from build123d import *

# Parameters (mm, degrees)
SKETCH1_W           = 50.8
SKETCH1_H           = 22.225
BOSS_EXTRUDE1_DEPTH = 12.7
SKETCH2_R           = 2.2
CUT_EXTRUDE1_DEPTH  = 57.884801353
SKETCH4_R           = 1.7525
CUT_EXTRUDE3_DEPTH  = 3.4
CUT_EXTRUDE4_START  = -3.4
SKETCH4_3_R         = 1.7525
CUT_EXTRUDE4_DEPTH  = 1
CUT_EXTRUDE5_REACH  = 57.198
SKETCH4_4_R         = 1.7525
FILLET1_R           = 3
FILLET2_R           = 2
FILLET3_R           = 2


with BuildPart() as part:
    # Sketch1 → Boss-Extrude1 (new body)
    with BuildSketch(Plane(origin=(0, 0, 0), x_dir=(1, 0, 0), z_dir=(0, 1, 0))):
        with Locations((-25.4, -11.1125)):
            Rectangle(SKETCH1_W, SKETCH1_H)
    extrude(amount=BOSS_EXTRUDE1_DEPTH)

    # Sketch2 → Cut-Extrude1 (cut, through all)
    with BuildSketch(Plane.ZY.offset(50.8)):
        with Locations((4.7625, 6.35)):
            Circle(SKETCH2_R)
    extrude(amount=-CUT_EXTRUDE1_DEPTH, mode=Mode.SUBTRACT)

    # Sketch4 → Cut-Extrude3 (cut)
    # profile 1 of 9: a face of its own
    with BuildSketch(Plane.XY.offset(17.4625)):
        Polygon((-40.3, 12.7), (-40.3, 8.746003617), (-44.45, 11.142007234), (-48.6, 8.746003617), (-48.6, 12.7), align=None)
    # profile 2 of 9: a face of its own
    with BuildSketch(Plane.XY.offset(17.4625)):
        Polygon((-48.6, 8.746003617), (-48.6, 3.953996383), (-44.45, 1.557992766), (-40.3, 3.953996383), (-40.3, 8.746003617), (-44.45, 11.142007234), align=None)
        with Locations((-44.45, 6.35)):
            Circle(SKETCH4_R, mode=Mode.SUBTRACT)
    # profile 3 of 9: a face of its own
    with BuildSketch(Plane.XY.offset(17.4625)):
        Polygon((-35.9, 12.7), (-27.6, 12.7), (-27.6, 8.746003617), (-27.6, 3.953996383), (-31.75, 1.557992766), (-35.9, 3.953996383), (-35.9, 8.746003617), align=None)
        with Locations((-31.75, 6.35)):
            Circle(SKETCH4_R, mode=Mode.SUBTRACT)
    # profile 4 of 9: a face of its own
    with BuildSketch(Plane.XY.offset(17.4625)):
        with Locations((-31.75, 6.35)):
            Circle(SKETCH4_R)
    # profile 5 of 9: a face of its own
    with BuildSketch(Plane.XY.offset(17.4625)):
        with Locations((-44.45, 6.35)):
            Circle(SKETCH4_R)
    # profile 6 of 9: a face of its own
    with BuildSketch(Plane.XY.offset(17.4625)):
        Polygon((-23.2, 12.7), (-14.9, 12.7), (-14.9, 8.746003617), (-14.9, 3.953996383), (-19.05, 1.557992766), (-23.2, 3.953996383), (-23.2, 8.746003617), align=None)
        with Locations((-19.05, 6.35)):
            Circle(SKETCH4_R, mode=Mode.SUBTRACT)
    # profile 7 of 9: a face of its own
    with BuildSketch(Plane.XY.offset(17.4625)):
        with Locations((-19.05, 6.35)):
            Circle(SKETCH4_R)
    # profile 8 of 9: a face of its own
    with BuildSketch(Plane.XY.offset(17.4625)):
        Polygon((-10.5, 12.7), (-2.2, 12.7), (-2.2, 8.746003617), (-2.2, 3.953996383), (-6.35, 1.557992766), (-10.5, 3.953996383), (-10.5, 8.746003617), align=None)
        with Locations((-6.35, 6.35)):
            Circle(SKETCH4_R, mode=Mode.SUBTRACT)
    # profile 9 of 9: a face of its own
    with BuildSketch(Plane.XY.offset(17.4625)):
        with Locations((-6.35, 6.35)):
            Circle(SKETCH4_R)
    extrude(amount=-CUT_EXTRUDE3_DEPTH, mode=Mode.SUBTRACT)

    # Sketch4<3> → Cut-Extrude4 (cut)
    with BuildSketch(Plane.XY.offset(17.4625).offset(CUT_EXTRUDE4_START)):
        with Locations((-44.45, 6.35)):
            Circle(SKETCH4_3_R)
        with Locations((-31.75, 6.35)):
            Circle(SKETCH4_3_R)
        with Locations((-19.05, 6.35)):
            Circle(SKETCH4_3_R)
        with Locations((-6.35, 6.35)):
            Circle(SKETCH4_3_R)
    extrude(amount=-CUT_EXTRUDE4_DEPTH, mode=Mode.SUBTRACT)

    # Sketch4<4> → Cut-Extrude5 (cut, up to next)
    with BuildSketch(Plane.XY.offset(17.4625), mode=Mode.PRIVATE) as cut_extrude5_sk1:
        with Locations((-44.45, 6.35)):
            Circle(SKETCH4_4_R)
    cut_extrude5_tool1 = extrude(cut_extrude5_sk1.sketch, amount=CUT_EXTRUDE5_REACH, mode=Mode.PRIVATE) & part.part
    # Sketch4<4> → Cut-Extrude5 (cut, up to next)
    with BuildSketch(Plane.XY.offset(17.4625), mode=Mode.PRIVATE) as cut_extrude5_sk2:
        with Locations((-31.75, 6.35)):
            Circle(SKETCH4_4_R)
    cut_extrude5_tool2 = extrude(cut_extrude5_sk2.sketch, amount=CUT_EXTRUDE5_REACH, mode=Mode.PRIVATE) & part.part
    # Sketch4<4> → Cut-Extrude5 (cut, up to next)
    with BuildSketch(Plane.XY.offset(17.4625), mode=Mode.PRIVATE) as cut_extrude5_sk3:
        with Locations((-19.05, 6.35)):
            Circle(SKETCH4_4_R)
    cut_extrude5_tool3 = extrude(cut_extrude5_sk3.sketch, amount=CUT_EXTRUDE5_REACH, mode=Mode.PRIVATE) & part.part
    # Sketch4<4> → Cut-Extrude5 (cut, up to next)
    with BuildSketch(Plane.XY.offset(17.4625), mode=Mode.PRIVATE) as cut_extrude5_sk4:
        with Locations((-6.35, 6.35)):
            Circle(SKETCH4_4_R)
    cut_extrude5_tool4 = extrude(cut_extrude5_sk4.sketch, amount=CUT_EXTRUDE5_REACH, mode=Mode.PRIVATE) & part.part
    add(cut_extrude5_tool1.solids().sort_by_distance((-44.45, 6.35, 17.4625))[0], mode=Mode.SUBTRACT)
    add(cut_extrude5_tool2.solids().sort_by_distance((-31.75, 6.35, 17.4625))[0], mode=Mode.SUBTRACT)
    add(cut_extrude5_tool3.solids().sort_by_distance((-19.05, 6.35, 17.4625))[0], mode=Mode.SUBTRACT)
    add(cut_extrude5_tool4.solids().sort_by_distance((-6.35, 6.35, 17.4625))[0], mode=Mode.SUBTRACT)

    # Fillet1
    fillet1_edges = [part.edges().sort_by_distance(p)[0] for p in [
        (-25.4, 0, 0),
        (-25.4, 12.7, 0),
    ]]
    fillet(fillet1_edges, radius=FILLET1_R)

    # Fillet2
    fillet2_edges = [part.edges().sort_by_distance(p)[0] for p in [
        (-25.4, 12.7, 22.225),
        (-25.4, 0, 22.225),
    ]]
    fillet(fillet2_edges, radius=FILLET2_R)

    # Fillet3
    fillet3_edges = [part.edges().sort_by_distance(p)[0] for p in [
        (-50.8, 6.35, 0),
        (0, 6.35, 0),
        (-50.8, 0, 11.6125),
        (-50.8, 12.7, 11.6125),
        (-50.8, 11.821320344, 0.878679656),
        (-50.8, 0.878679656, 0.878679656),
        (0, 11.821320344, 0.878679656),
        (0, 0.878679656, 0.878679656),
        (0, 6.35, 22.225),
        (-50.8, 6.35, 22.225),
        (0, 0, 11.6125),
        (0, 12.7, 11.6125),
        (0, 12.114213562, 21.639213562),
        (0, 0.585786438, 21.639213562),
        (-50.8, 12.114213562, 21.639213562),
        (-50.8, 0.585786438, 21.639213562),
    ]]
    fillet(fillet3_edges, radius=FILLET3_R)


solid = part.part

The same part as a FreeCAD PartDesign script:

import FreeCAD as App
import Part
import Sketcher
from FreeCAD import Vector
Q = App.Units.Quantity


def edges_at(feature, points):
    """Names of the edges that pass closest to the given points."""
    edges = feature.Shape.Edges
    near = lambda p: min(range(len(edges)), key=lambda i: edges[i].distToShape(Part.Vertex(*p))[0])
    return sorted({f"Edge{near(p) + 1}" for p in points})

doc = App.newDocument("Part")
body = doc.addObject("PartDesign::Body", "Body")

# Sketch on XZ plane
sketch1 = body.newObject("Sketcher::SketchObject", "Sketch")
sketch1.AttachmentSupport = (doc.getObject("XZ_Plane"), [""])
sketch1.MapMode = "FlatFace"
sketch1.addGeometry(Part.LineSegment(Vector(-51, 0, 0), Vector(-51, 22, 0)), False)
sketch1.addGeometry(Part.LineSegment(Vector(-51, 22, 0), Vector(0, 22, 0)), False)
sketch1.addGeometry(Part.LineSegment(Vector(0, 22, 0), Vector(0, 0, 0)), False)
sketch1.addGeometry(Part.LineSegment(Vector(0, 0, 0), Vector(-51, 0, 0)), False)
sketch1.addConstraint(Sketcher.Constraint("Coincident", 0, 2, 1, 1))
sketch1.addConstraint(Sketcher.Constraint("Coincident", 1, 2, 2, 1))
sketch1.addConstraint(Sketcher.Constraint("Coincident", 2, 2, 3, 1))
sketch1.addConstraint(Sketcher.Constraint("Coincident", 3, 2, 0, 1))
sketch1.addConstraint(Sketcher.Constraint("Vertical", 0))
sketch1.addConstraint(Sketcher.Constraint("Horizontal", 1))
sketch1.addConstraint(Sketcher.Constraint("Vertical", 2))
sketch1.addConstraint(Sketcher.Constraint("Horizontal", 3))
sketch1.addConstraint(Sketcher.Constraint("Coincident", 2, 2, -1, 1))
sketch1.addConstraint(Sketcher.Constraint("DistanceX", 1, 1, 1, 2, Q("50.8 mm")))
sketch1.addConstraint(Sketcher.Constraint("DistanceY", 0, 1, 0, 2, Q("22.225 mm")))
pad1 = body.newObject("PartDesign::Pad", "Pad")
pad1.Profile = sketch1
pad1.Length = 12.7
pad1.Reversed = True

# Sketch on YZ plane
sketch2 = body.newObject("Sketcher::SketchObject", "Sketch001")
sketch2.AttachmentSupport = (doc.getObject("YZ_Plane"), [""])
sketch2.MapMode = "FlatFace"
sketch2.AttachmentOffset = App.Placement(Vector(0, 0, -50.8), App.Rotation())
sketch2.addGeometry(Part.Circle(Vector(6.3, 4.8, 0), Vector(0, 0, 1), 2.2), False)
sketch2.addConstraint(Sketcher.Constraint("Diameter", 0, Q("4.4 mm")))
sketch2.addConstraint(Sketcher.Constraint("DistanceX", -1, 1, 0, 3, Q("6.35 mm")))
sketch2.addConstraint(Sketcher.Constraint("DistanceY", -1, 1, 0, 3, Q("4.7625 mm")))
pocket1 = body.newObject("PartDesign::Pocket", "Pocket")
pocket1.Profile = sketch2
pocket1.Type = "ThroughAll"
pocket1.Reversed = True

# Sketch on XY plane
sketch3 = body.newObject("Sketcher::SketchObject", "Sketch002")
sketch3.AttachmentSupport = (doc.getObject("XY_Plane"), [""])
sketch3.MapMode = "FlatFace"
sketch3.AttachmentOffset = App.Placement(Vector(0, 0, 17.4625), App.Rotation())
sketch3.addGeometry(Part.LineSegment(Vector(-40.3, 4, 0), Vector(-40.3, 12.7, 0)), False)
sketch3.addGeometry(Part.LineSegment(Vector(-40.3, 12.7, 0), Vector(-48.6, 12.7, 0)), False)
sketch3.addGeometry(Part.LineSegment(Vector(-48.6, 12.7, 0), Vector(-48.6, 4, 0)), False)
sketch3.addGeometry(Part.LineSegment(Vector(-48.6, 4, 0), Vector(-44.5, 1.6, 0)), False)
sketch3.addGeometry(Part.LineSegment(Vector(-44.5, 1.6, 0), Vector(-40.3, 4, 0)), False)
sketch3.addGeometry(Part.LineSegment(Vector(-27.6, 12.7, 0), Vector(-35.9, 12.7, 0)), False)
sketch3.addGeometry(Part.LineSegment(Vector(-35.9, 12.7, 0), Vector(-35.9, 4, 0)), False)
sketch3.addGeometry(Part.LineSegment(Vector(-35.9, 4, 0), Vector(-31.8, 1.6, 0)), False)
sketch3.addGeometry(Part.LineSegment(Vector(-31.8, 1.6, 0), Vector(-27.6, 4, 0)), False)
sketch3.addGeometry(Part.LineSegment(Vector(-27.6, 4, 0), Vector(-27.6, 12.7, 0)), False)
sketch3.addGeometry(Part.LineSegment(Vector(-14.9, 12.7, 0), Vector(-23.2, 12.7, 0)), False)
sketch3.addGeometry(Part.LineSegment(Vector(-23.2, 12.7, 0), Vector(-23.2, 4, 0)), False)
sketch3.addGeometry(Part.LineSegment(Vector(-23.2, 4, 0), Vector(-19.1, 1.6, 0)), False)
sketch3.addGeometry(Part.LineSegment(Vector(-19.1, 1.6, 0), Vector(-14.9, 4, 0)), False)
sketch3.addGeometry(Part.LineSegment(Vector(-14.9, 4, 0), Vector(-14.9, 12.7, 0)), False)
sketch3.addGeometry(Part.LineSegment(Vector(-2.2, 12.7, 0), Vector(-10.5, 12.7, 0)), False)
sketch3.addGeometry(Part.LineSegment(Vector(-10.5, 12.7, 0), Vector(-10.5, 4, 0)), False)
sketch3.addGeometry(Part.LineSegment(Vector(-10.5, 4, 0), Vector(-6.3, 1.6, 0)), False)
sketch3.addGeometry(Part.LineSegment(Vector(-6.3, 1.6, 0), Vector(-2.2, 4, 0)), False)
sketch3.addGeometry(Part.LineSegment(Vector(-2.2, 4, 0), Vector(-2.2, 12.7, 0)), False)
sketch3.addConstraint(Sketcher.Constraint("Coincident", 0, 2, 1, 1))
sketch3.addConstraint(Sketcher.Constraint("Coincident", 1, 2, 2, 1))
sketch3.addConstraint(Sketcher.Constraint("Coincident", 2, 2, 3, 1))
sketch3.addConstraint(Sketcher.Constraint("Coincident", 3, 2, 4, 1))
sketch3.addConstraint(Sketcher.Constraint("Coincident", 4, 2, 0, 1))
sketch3.addConstraint(Sketcher.Constraint("Coincident", 5, 2, 6, 1))
sketch3.addConstraint(Sketcher.Constraint("Coincident", 6, 2, 7, 1))
sketch3.addConstraint(Sketcher.Constraint("Coincident", 7, 2, 8, 1))
sketch3.addConstraint(Sketcher.Constraint("Coincident", 8, 2, 9, 1))
sketch3.addConstraint(Sketcher.Constraint("Coincident", 9, 2, 5, 1))
sketch3.addConstraint(Sketcher.Constraint("Coincident", 10, 2, 11, 1))
sketch3.addConstraint(Sketcher.Constraint("Coincident", 11, 2, 12, 1))
sketch3.addConstraint(Sketcher.Constraint("Coincident", 12, 2, 13, 1))
sketch3.addConstraint(Sketcher.Constraint("Coincident", 13, 2, 14, 1))
sketch3.addConstraint(Sketcher.Constraint("Coincident", 14, 2, 10, 1))
sketch3.addConstraint(Sketcher.Constraint("Coincident", 15, 2, 16, 1))
sketch3.addConstraint(Sketcher.Constraint("Coincident", 16, 2, 17, 1))
sketch3.addConstraint(Sketcher.Constraint("Coincident", 17, 2, 18, 1))
sketch3.addConstraint(Sketcher.Constraint("Coincident", 18, 2, 19, 1))
sketch3.addConstraint(Sketcher.Constraint("Coincident", 19, 2, 15, 1))
sketch3.addConstraint(Sketcher.Constraint("Vertical", 0))
sketch3.addConstraint(Sketcher.Constraint("Horizontal", 1))
sketch3.addConstraint(Sketcher.Constraint("Vertical", 2))
sketch3.addConstraint(Sketcher.Constraint("Horizontal", 5))
sketch3.addConstraint(Sketcher.Constraint("Vertical", 6))
sketch3.addConstraint(Sketcher.Constraint("Vertical", 9))
sketch3.addConstraint(Sketcher.Constraint("Horizontal", 10))
sketch3.addConstraint(Sketcher.Constraint("Vertical", 11))
sketch3.addConstraint(Sketcher.Constraint("Vertical", 14))
sketch3.addConstraint(Sketcher.Constraint("Horizontal", 15))
sketch3.addConstraint(Sketcher.Constraint("Vertical", 16))
sketch3.addConstraint(Sketcher.Constraint("Vertical", 19))
sketch3.addConstraint(Sketcher.Constraint("Parallel", 3, 7))
sketch3.addConstraint(Sketcher.Constraint("Parallel", 4, 8))
sketch3.addConstraint(Sketcher.Constraint("Parallel", 7, 12))
sketch3.addConstraint(Sketcher.Constraint("Parallel", 8, 13))
sketch3.addConstraint(Sketcher.Constraint("Parallel", 12, 17))
sketch3.addConstraint(Sketcher.Constraint("Parallel", 13, 18))
sketch3.addConstraint(Sketcher.Constraint("Horizontal", 2, 2, 4, 2))
sketch3.addConstraint(Sketcher.Constraint("Horizontal", 1, 2, 5, 2))
sketch3.addConstraint(Sketcher.Constraint("Horizontal", 4, 2, 6, 2))
sketch3.addConstraint(Sketcher.Constraint("Horizontal", 3, 2, 7, 2))
sketch3.addConstraint(Sketcher.Constraint("Horizontal", 6, 2, 8, 2))
sketch3.addConstraint(Sketcher.Constraint("Horizontal", 9, 2, 10, 2))
sketch3.addConstraint(Sketcher.Constraint("Horizontal", 8, 2, 11, 2))
sketch3.addConstraint(Sketcher.Constraint("Horizontal", 7, 2, 12, 2))
sketch3.addConstraint(Sketcher.Constraint("Horizontal", 11, 2, 13, 2))
sketch3.addConstraint(Sketcher.Constraint("Horizontal", 14, 2, 15, 2))
sketch3.addConstraint(Sketcher.Constraint("Horizontal", 13, 2, 16, 2))
sketch3.addConstraint(Sketcher.Constraint("Horizontal", 12, 2, 17, 2))
sketch3.addConstraint(Sketcher.Constraint("Horizontal", 16, 2, 18, 2))
sketch3.addConstraint(Sketcher.Constraint("Equal", 3, 4))
sketch3.addConstraint(Sketcher.Constraint("Angle", 3, Q("-30 deg")))
sketch3.addConstraint(Sketcher.Constraint("DistanceX", 1, 2, 1, 1, Q("8.3 mm")))
sketch3.addConstraint(Sketcher.Constraint("DistanceX", 0, 2, -1, 1, Q("40.3 mm")))
sketch3.addConstraint(Sketcher.Constraint("DistanceY", -1, 1, 0, 2, Q("12.7 mm")))
sketch3.addConstraint(Sketcher.Constraint("DistanceX", 5, 2, -1, 1, Q("35.9 mm")))
sketch3.addConstraint(Sketcher.Constraint("DistanceX", 10, 2, -1, 1, Q("23.2 mm")))
sketch3.addConstraint(Sketcher.Constraint("DistanceX", 15, 2, -1, 1, Q("10.5 mm")))
sketch3.addConstraint(Sketcher.Constraint("DistanceY", 0, 1, 0, 2, Q("8.746004 mm")))
pocket2 = body.newObject("PartDesign::Pocket", "Pocket001")
pocket2.Profile = sketch3
pocket2.Length = 3.4

# Sketch on XY plane
sketch4 = body.newObject("Sketcher::SketchObject", "Sketch003")
sketch4.AttachmentSupport = (doc.getObject("XY_Plane"), [""])
sketch4.MapMode = "FlatFace"
sketch4.AttachmentOffset = App.Placement(Vector(0, 0, 14.0625), App.Rotation())
sketch4.addGeometry(Part.Circle(Vector(-44.5, 6.3, 0), Vector(0, 0, 1), 1.8), False)
sketch4.addGeometry(Part.Circle(Vector(-31.8, 6.3, 0), Vector(0, 0, 1), 1.8), False)
sketch4.addGeometry(Part.Circle(Vector(-19.1, 6.3, 0), Vector(0, 0, 1), 1.8), False)
sketch4.addGeometry(Part.Circle(Vector(-6.3, 6.3, 0), Vector(0, 0, 1), 1.8), False)
sketch4.addConstraint(Sketcher.Constraint("Equal", 0, 1))
sketch4.addConstraint(Sketcher.Constraint("Equal", 1, 2))
sketch4.addConstraint(Sketcher.Constraint("Equal", 2, 3))
sketch4.addConstraint(Sketcher.Constraint("Horizontal", 0, 3, 1, 3))
sketch4.addConstraint(Sketcher.Constraint("Horizontal", 1, 3, 2, 3))
sketch4.addConstraint(Sketcher.Constraint("Horizontal", 2, 3, 3, 3))
sketch4.addConstraint(Sketcher.Constraint("Diameter", 0, Q("3.505 mm")))
sketch4.addConstraint(Sketcher.Constraint("DistanceX", 0, 3, 1, 3, Q("12.7 mm")))
sketch4.addConstraint(Sketcher.Constraint("DistanceX", 1, 3, 2, 3, Q("12.7 mm")))
sketch4.addConstraint(Sketcher.Constraint("DistanceX", 2, 3, 3, 3, Q("12.7 mm")))
sketch4.addConstraint(Sketcher.Constraint("DistanceX", 0, 3, -1, 1, Q("44.45 mm")))
sketch4.addConstraint(Sketcher.Constraint("DistanceY", -1, 1, 0, 3, Q("6.35 mm")))
pocket3 = body.newObject("PartDesign::Pocket", "Pocket002")
pocket3.Profile = sketch4
pocket3.Length = 1

# Sketch on XY plane
sketch5 = body.newObject("Sketcher::SketchObject", "Sketch004")
sketch5.AttachmentSupport = (doc.getObject("XY_Plane"), [""])
sketch5.MapMode = "FlatFace"
sketch5.AttachmentOffset = App.Placement(Vector(0, 0, 17.4625), App.Rotation())
sketch5.addGeometry(Part.Circle(Vector(-44.5, 6.3, 0), Vector(0, 0, 1), 1.8), False)
sketch5.addConstraint(Sketcher.Constraint("Diameter", 0, Q("3.505 mm")))
sketch5.addConstraint(Sketcher.Constraint("DistanceX", 0, 3, -1, 1, Q("44.45 mm")))
sketch5.addConstraint(Sketcher.Constraint("DistanceY", -1, 1, 0, 3, Q("6.35 mm")))
pocket4 = body.newObject("PartDesign::Pocket", "Pocket003")
pocket4.Profile = sketch5
pocket4.Type = "UpToFirst"
pocket4.Reversed = True

# Sketch on XY plane
sketch6 = body.newObject("Sketcher::SketchObject", "Sketch005")
sketch6.AttachmentSupport = (doc.getObject("XY_Plane"), [""])
sketch6.MapMode = "FlatFace"
sketch6.AttachmentOffset = App.Placement(Vector(0, 0, 17.4625), App.Rotation())
sketch6.addGeometry(Part.Circle(Vector(-31.8, 6.3, 0), Vector(0, 0, 1), 1.8), False)
sketch6.addConstraint(Sketcher.Constraint("Diameter", 0, Q("3.505 mm")))
sketch6.addConstraint(Sketcher.Constraint("DistanceX", 0, 3, -1, 1, Q("31.75 mm")))
sketch6.addConstraint(Sketcher.Constraint("DistanceY", -1, 1, 0, 3, Q("6.35 mm")))
pocket5 = body.newObject("PartDesign::Pocket", "Pocket004")
pocket5.Profile = sketch6
pocket5.Type = "UpToFirst"
pocket5.Reversed = True

# Sketch on XY plane
sketch7 = body.newObject("Sketcher::SketchObject", "Sketch006")
sketch7.AttachmentSupport = (doc.getObject("XY_Plane"), [""])
sketch7.MapMode = "FlatFace"
sketch7.AttachmentOffset = App.Placement(Vector(0, 0, 17.4625), App.Rotation())
sketch7.addGeometry(Part.Circle(Vector(-19.1, 6.3, 0), Vector(0, 0, 1), 1.8), False)
sketch7.addConstraint(Sketcher.Constraint("Diameter", 0, Q("3.505 mm")))
sketch7.addConstraint(Sketcher.Constraint("DistanceX", 0, 3, -1, 1, Q("19.05 mm")))
sketch7.addConstraint(Sketcher.Constraint("DistanceY", -1, 1, 0, 3, Q("6.35 mm")))
pocket6 = body.newObject("PartDesign::Pocket", "Pocket005")
pocket6.Profile = sketch7
pocket6.Type = "UpToFirst"
pocket6.Reversed = True

# Sketch on XY plane
sketch8 = body.newObject("Sketcher::SketchObject", "Sketch007")
sketch8.AttachmentSupport = (doc.getObject("XY_Plane"), [""])
sketch8.MapMode = "FlatFace"
sketch8.AttachmentOffset = App.Placement(Vector(0, 0, 17.4625), App.Rotation())
sketch8.addGeometry(Part.Circle(Vector(-6.3, 6.3, 0), Vector(0, 0, 1), 1.8), False)
sketch8.addConstraint(Sketcher.Constraint("Diameter", 0, Q("3.505 mm")))
sketch8.addConstraint(Sketcher.Constraint("DistanceX", 0, 3, -1, 1, Q("6.35 mm")))
sketch8.addConstraint(Sketcher.Constraint("DistanceY", -1, 1, 0, 3, Q("6.35 mm")))
pocket7 = body.newObject("PartDesign::Pocket", "Pocket006")
pocket7.Profile = sketch8
pocket7.Type = "UpToFirst"
pocket7.Reversed = True
doc.recompute()

fillet = body.newObject("PartDesign::Fillet", "Fillet")
fillet.Base = (pocket7, edges_at(pocket7, [(-25.4, 0, 0), (-25.4, 12.7, 0)]))
fillet.Radius = 3
doc.recompute()

fillet2 = body.newObject("PartDesign::Fillet", "Fillet001")
fillet2.Base = (fillet, edges_at(fillet, [(-25.4, 12.7, 22.225), (-25.4, 0, 22.225)]))
fillet2.Radius = 2
doc.recompute()

fillet3 = body.newObject("PartDesign::Fillet", "Fillet002")
fillet3.Base = (fillet2, edges_at(fillet2, [
    (-50.8, 6.35, 0),
    (0, 6.35, 0),
    (-50.8, 0, 11.613),
    (-50.8, 12.7, 11.613),
    (-50.8, 11.821, 0.879),
    (-50.8, 0.879, 0.879),
    (0, 11.821, 0.879),
    (0, 0.879, 0.879),
    (0, 6.35, 22.225),
    (-50.8, 6.35, 22.225),
    (0, 0, 11.613),
    (0, 12.7, 11.613),
    (0, 12.114, 21.639),
    (0, 0.586, 21.639),
    (-50.8, 12.114, 21.639),
    (-50.8, 0.586, 21.639),
]))
fillet3.Radius = 2

doc.recompute()
